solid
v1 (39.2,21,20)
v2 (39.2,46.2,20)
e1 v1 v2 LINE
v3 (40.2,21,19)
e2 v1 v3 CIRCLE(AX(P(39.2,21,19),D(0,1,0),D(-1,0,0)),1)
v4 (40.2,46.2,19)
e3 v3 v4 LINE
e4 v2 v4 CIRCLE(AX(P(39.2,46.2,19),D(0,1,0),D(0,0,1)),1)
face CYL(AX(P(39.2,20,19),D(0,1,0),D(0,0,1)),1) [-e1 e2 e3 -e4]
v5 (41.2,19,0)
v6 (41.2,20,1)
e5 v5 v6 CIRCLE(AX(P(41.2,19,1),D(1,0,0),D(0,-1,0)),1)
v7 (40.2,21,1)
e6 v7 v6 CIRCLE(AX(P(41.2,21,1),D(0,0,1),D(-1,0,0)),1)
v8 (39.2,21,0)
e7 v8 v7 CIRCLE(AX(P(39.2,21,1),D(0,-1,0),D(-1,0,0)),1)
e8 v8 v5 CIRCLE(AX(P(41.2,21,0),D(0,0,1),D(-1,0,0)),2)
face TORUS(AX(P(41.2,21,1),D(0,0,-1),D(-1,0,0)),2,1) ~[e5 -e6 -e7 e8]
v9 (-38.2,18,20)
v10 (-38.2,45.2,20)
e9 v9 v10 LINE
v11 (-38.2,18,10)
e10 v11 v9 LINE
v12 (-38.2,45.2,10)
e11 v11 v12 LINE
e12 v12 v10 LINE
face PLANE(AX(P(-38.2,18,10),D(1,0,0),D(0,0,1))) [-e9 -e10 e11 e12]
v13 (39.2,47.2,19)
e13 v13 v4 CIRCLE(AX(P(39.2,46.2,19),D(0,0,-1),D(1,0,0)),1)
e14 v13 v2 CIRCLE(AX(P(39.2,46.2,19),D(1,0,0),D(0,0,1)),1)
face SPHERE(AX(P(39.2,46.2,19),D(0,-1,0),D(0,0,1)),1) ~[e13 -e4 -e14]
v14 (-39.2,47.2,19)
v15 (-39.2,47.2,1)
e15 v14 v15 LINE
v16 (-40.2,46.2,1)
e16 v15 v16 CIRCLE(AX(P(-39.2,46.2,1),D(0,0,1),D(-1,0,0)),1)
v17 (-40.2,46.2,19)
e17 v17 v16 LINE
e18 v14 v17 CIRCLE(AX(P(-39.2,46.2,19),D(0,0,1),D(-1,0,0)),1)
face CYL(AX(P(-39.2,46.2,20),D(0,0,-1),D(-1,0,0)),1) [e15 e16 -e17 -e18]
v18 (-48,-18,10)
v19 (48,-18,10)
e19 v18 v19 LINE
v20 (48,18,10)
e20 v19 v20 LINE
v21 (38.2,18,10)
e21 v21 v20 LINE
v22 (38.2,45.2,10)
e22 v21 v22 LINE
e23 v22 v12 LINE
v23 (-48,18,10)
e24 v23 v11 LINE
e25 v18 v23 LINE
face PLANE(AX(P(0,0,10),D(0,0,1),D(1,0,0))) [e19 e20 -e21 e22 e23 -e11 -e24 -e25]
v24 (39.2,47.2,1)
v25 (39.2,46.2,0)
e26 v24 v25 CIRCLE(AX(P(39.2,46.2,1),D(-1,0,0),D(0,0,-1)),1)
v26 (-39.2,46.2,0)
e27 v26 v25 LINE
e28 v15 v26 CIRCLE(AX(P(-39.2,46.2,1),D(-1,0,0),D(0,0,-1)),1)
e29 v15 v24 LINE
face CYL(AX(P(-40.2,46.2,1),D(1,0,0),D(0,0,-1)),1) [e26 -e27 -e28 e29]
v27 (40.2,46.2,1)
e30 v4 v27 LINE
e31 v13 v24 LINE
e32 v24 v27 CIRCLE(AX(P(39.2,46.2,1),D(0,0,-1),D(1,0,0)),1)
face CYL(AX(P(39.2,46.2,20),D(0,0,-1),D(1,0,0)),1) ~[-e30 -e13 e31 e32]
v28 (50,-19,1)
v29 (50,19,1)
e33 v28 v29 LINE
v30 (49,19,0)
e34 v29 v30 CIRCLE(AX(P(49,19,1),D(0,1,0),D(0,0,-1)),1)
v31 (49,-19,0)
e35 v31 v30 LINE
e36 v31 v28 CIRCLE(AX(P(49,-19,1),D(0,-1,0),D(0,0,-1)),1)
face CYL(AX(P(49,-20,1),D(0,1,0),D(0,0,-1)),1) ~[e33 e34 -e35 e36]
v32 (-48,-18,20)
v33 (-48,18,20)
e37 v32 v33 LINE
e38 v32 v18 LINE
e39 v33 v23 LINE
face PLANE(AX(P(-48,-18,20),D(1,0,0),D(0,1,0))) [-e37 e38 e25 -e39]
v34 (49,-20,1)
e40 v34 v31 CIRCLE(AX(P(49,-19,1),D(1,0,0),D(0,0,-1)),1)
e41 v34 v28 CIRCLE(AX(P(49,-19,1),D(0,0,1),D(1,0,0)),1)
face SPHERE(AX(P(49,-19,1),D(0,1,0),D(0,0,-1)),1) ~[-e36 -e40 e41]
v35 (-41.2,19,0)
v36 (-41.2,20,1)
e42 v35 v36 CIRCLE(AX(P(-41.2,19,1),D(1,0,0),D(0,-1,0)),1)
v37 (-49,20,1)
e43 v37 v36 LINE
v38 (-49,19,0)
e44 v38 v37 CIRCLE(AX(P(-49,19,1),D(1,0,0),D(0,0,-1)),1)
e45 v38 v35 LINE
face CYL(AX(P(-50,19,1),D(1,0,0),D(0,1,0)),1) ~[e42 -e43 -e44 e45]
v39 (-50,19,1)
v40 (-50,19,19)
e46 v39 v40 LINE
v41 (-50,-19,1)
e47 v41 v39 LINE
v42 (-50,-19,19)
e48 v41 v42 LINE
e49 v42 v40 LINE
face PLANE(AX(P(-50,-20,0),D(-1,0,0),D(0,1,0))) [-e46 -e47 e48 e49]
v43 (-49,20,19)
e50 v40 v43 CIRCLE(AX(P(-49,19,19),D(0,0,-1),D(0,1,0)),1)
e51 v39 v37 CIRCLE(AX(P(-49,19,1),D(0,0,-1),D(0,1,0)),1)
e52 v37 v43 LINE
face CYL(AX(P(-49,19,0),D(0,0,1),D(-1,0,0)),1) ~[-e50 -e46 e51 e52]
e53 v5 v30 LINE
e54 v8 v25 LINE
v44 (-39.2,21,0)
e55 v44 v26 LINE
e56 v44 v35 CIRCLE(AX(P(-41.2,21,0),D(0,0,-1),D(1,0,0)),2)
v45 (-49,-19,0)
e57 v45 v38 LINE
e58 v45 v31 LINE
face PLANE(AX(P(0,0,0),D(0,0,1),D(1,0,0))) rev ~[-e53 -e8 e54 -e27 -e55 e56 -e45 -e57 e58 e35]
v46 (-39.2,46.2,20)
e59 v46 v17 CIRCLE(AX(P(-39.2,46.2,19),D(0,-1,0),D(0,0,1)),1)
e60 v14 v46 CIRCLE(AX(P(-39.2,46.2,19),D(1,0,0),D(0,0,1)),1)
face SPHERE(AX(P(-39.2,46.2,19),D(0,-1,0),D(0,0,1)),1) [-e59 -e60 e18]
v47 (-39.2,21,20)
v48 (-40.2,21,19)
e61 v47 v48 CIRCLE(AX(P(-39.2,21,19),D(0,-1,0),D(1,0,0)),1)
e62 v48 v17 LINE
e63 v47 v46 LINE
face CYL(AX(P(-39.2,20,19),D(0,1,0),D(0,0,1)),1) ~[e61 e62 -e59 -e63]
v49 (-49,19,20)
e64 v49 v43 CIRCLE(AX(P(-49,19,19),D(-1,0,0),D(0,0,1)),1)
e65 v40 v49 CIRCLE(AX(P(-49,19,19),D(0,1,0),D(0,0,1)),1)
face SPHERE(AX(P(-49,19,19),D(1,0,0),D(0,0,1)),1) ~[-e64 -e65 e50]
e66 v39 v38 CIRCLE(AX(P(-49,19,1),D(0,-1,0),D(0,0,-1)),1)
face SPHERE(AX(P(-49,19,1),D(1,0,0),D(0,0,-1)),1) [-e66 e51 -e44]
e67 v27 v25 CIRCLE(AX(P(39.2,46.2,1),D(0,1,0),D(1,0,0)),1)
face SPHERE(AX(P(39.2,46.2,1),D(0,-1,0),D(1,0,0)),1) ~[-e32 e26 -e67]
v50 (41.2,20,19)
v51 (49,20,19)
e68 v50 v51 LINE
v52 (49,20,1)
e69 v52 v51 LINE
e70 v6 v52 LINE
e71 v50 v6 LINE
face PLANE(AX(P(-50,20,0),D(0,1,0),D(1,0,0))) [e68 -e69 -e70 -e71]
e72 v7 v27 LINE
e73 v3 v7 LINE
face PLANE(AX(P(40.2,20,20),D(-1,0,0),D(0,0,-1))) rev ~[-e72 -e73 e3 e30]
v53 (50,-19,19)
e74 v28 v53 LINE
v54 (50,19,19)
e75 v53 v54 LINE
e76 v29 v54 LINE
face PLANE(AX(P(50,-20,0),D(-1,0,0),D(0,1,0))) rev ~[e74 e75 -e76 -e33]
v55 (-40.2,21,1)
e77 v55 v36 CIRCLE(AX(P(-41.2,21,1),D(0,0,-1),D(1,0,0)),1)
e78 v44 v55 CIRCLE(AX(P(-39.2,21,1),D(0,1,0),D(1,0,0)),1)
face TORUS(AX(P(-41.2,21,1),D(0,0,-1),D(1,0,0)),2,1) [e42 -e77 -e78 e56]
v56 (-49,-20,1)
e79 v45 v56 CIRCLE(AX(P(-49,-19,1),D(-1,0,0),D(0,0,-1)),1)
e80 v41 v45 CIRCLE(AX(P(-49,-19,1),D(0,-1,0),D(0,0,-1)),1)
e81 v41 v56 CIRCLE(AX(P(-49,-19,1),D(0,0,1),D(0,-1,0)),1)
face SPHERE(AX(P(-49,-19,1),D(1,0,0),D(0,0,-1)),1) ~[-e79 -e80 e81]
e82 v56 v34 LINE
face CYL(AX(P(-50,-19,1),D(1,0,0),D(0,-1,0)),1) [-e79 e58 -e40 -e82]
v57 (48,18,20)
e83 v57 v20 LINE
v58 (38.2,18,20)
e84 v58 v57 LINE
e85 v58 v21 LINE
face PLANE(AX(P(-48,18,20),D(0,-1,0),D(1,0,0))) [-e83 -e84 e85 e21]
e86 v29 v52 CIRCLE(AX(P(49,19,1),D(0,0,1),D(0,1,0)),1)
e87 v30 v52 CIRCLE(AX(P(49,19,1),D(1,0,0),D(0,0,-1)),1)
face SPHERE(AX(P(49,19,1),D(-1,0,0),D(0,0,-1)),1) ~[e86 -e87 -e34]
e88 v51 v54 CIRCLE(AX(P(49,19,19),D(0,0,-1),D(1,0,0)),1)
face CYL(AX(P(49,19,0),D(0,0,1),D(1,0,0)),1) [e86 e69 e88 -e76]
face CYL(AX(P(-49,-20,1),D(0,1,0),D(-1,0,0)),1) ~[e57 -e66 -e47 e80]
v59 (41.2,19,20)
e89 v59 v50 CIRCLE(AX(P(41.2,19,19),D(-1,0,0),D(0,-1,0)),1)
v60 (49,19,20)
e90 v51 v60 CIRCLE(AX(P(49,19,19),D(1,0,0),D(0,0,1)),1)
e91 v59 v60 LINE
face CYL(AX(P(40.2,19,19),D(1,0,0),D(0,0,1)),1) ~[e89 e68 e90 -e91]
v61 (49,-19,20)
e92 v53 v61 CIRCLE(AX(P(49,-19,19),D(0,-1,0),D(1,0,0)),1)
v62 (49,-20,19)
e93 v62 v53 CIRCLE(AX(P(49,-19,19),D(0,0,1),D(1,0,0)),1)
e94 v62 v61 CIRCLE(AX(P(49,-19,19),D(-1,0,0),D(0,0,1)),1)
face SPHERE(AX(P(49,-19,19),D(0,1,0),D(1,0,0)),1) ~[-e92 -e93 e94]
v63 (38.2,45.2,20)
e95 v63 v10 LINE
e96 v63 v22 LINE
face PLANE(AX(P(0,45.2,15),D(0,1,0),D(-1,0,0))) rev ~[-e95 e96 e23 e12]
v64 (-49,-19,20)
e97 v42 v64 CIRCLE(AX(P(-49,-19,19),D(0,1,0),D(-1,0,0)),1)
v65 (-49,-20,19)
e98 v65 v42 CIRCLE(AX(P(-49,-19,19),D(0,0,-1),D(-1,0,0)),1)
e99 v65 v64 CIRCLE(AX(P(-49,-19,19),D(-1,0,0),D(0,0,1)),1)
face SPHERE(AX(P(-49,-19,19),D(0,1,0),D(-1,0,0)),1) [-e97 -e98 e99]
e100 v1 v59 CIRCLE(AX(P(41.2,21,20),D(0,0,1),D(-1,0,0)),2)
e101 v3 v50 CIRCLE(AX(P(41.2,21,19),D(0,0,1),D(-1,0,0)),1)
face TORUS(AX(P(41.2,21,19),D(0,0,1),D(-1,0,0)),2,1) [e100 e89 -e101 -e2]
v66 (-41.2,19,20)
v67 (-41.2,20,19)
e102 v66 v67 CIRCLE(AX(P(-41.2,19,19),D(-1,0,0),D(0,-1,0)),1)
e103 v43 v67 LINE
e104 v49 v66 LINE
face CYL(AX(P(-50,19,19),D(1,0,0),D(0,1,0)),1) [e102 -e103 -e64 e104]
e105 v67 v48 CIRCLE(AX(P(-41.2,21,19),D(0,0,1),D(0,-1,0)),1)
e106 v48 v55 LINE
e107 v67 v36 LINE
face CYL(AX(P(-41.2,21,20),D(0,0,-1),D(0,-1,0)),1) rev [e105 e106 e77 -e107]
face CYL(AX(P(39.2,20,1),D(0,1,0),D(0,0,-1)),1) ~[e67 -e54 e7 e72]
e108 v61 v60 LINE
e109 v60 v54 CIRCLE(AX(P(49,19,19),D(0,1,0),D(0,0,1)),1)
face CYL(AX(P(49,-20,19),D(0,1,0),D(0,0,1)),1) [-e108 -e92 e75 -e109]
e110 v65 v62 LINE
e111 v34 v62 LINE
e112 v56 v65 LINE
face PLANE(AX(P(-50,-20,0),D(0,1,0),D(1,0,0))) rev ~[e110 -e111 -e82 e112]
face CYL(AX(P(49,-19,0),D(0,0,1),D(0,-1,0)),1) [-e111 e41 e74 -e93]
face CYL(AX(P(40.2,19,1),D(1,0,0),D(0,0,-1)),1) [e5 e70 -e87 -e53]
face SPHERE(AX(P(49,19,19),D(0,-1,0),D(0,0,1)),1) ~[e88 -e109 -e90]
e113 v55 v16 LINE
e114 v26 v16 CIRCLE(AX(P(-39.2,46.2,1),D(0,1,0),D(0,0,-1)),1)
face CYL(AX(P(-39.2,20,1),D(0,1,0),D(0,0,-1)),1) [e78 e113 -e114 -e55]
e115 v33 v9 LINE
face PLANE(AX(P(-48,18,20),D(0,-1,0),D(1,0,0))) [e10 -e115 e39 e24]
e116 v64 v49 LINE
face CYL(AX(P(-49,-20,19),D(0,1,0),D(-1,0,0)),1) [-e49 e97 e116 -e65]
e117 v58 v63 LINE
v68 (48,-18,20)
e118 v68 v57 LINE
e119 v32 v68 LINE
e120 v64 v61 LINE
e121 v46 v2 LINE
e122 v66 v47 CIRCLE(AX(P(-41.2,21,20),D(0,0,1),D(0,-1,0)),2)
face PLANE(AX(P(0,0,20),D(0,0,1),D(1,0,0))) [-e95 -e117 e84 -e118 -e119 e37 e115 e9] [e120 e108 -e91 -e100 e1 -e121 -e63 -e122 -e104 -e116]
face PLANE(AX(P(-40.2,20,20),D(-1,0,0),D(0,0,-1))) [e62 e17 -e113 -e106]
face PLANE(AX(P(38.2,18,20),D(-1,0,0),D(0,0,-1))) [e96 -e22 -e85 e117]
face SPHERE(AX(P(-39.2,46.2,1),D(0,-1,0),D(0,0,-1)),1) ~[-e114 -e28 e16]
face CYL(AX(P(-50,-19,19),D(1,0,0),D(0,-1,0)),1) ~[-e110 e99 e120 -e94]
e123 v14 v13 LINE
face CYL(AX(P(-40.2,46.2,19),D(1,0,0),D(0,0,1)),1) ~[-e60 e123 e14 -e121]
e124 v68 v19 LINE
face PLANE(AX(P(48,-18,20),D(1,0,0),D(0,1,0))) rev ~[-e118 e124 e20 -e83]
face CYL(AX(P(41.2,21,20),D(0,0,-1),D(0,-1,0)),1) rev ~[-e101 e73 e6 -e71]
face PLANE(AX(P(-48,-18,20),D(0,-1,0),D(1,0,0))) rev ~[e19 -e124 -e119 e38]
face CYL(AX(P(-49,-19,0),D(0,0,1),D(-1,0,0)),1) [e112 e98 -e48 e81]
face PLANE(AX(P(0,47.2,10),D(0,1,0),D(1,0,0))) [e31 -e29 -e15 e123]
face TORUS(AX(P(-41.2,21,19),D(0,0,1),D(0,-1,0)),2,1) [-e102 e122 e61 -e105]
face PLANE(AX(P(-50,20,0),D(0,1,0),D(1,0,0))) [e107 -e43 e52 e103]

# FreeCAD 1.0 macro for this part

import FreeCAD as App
import Part
import Sketcher
from FreeCAD import Vector
Q = App.Units.Quantity


def edges_at(feature, points):
    """Names of the edges that pass closest to the given points."""
    edges = feature.Shape.Edges
    near = lambda p: min(range(len(edges)), key=lambda i: edges[i].distToShape(Part.Vertex(*p))[0])
    return sorted({f"Edge{near(p) + 1}" for p in points})


def add_polygon(sketch, points):
    """Adds a closed chain of lines whose ends are joined by coincident constraints."""
    first, n = sketch.GeometryCount, len(points)
    for a, b in zip(points, points[1:] + points[:1]):
        sketch.addGeometry(Part.LineSegment(App.Vector(*a, 0), App.Vector(*b, 0)), False)
    for i in range(n):
        sketch.addConstraint(Sketcher.Constraint("Coincident", first + i, 2, first + (i + 1) % n, 1))

doc = App.newDocument("Part")
body = doc.addObject("PartDesign::Body", "Body")

sketch1 = body.newObject("Sketcher::SketchObject", "Sketch")
sketch1.AttachmentSupport = (doc.getObject("XY_Plane"), [""])
sketch1.MapMode = "FlatFace"
add_polygon(sketch1, [(-50, 20), (-50, -20), (50, -20), (50, 20)])
sketch1.addConstraint([
    Sketcher.Constraint("Vertical", 0),
    Sketcher.Constraint("Horizontal", 1),
    Sketcher.Constraint("Vertical", 2),
    Sketcher.Constraint("Horizontal", 3),
    Sketcher.Constraint("Symmetric", 0, 2, 2, 2, -1, 1),
    Sketcher.Constraint("DistanceX", 1, 1, 1, 2, Q("100 mm")),
    Sketcher.Constraint("DistanceY", 0, 2, 0, 1, Q("40 mm")),
])
pad1 = body.newObject("PartDesign::Pad", "Pad")
pad1.Profile = sketch1
pad1.Length = 20

sketch2 = body.newObject("Sketcher::SketchObject", "Sketch001")
sketch2.AttachmentSupport = (doc.getObject("XY_Plane"), [""])
sketch2.MapMode = "FlatFace"
sketch2.AttachmentOffset = App.Placement(Vector(0, 0, 20), App.Rotation())
add_polygon(sketch2, [(-48, 18), (-48, -18), (48, -18), (48, 18)])
sketch2.addConstraint([
    Sketcher.Constraint("Vertical", 0),
    Sketcher.Constraint("Horizontal", 1),
    Sketcher.Constraint("Vertical", 2),
    Sketcher.Constraint("Horizontal", 3),
    Sketcher.Constraint("Symmetric", 0, 2, 2, 2, -1, 1),
    Sketcher.Constraint("DistanceX", 1, 1, 1, 2, Q("96 mm")),
    Sketcher.Constraint("DistanceY", 0, 2, 0, 1, Q("36 mm")),
])
pocket1 = body.newObject("PartDesign::Pocket", "Pocket")
pocket1.Profile = sketch2
pocket1.Length = 10

sketch3 = body.newObject("Sketcher::SketchObject", "Sketch002")
sketch3.AttachmentSupport = (doc.getObject("XZ_Plane"), [""])
sketch3.MapMode = "FlatFace"
sketch3.AttachmentOffset = App.Placement(Vector(0, 0, -20), App.Rotation())
add_polygon(sketch3, [(-40.2, 0), (-40.2, 20), (40.2, 20), (40.2, 0)])
sketch3.addConstraint([
    Sketcher.Constraint("Vertical", 0),
    Sketcher.Constraint("Horizontal", 1),
    Sketcher.Constraint("Vertical", 2),
    Sketcher.Constraint("Horizontal", 3),
    Sketcher.Constraint("Symmetric", 2, 2, 3, 2, -1, 1),
    Sketcher.Constraint("DistanceY", 0, 1, 0, 2, Q("20 mm")),
    Sketcher.Constraint("DistanceX", 1, 1, 1, 2, Q("80.4 mm")),
])
pad2 = body.newObject("PartDesign::Pad", "Pad001")
pad2.Profile = sketch3
pad2.Length = 27.2
pad2.Reversed = True

sketch4 = body.newObject("Sketcher::SketchObject", "Sketch003")
sketch4.AttachmentSupport = (doc.getObject("XZ_Plane"), [""])
sketch4.MapMode = "FlatFace"
sketch4.AttachmentOffset = App.Placement(Vector(0, 0, -18), App.Rotation())
add_polygon(sketch4, [(38.2, 20), (-38.2, 20), (-38.2, 10), (38.2, 10)])
sketch4.addConstraint([
    Sketcher.Constraint("Horizontal", 0),
    Sketcher.Constraint("Vertical", 1),
    Sketcher.Constraint("Horizontal", 2),
    Sketcher.Constraint("Vertical", 3),
    Sketcher.Constraint("DistanceY", 1, 2, 1, 1, Q("10 mm")),
    Sketcher.Constraint("DistanceX", 0, 2, 0, 1, Q("76.4 mm")),
    Sketcher.Constraint("DistanceY", -1, 1, 0, 2, Q("20 mm")),
    Sketcher.Constraint("DistanceX", 0, 2, -1, 1, Q("38.2 mm")),
])
pocket2 = body.newObject("PartDesign::Pocket", "Pocket001")
pocket2.Profile = sketch4
pocket2.Length = 27.2
doc.recompute()

fillet = body.newObject("PartDesign::Fillet", "Fillet")
fillet.Base = (pocket2, edges_at(pocket2, [
    (50, 0, 20),
    (45.1, 20, 20),
    (-45.1, 20, 0),
    (-45.1, 20, 20),
    (-40.2, 33.6, 20),
    (40.2, 20, 10),
    (40.2, 33.6, 20),
    (40.2, 33.6, 0),
    (-40.2, 20, 10),
    (-40.2, 33.6, 0),
    (0, 47.2, 20),
    (40.2, 47.2, 10),
    (0, 47.2, 0),
    (-40.2, 47.2, 10),
    (-50, 0, 20),
    (45.1, 20, 0),
    (50, 0, 0),
    (0, -20, 0),
    (-50, 0, 0),
    (-50, 20, 10),
    (50, 20, 10),
    (50, -20, 10),
    (-50, -20, 10),
    (0, -20, 20),
]))
fillet.Radius = 1

doc.recompute()
